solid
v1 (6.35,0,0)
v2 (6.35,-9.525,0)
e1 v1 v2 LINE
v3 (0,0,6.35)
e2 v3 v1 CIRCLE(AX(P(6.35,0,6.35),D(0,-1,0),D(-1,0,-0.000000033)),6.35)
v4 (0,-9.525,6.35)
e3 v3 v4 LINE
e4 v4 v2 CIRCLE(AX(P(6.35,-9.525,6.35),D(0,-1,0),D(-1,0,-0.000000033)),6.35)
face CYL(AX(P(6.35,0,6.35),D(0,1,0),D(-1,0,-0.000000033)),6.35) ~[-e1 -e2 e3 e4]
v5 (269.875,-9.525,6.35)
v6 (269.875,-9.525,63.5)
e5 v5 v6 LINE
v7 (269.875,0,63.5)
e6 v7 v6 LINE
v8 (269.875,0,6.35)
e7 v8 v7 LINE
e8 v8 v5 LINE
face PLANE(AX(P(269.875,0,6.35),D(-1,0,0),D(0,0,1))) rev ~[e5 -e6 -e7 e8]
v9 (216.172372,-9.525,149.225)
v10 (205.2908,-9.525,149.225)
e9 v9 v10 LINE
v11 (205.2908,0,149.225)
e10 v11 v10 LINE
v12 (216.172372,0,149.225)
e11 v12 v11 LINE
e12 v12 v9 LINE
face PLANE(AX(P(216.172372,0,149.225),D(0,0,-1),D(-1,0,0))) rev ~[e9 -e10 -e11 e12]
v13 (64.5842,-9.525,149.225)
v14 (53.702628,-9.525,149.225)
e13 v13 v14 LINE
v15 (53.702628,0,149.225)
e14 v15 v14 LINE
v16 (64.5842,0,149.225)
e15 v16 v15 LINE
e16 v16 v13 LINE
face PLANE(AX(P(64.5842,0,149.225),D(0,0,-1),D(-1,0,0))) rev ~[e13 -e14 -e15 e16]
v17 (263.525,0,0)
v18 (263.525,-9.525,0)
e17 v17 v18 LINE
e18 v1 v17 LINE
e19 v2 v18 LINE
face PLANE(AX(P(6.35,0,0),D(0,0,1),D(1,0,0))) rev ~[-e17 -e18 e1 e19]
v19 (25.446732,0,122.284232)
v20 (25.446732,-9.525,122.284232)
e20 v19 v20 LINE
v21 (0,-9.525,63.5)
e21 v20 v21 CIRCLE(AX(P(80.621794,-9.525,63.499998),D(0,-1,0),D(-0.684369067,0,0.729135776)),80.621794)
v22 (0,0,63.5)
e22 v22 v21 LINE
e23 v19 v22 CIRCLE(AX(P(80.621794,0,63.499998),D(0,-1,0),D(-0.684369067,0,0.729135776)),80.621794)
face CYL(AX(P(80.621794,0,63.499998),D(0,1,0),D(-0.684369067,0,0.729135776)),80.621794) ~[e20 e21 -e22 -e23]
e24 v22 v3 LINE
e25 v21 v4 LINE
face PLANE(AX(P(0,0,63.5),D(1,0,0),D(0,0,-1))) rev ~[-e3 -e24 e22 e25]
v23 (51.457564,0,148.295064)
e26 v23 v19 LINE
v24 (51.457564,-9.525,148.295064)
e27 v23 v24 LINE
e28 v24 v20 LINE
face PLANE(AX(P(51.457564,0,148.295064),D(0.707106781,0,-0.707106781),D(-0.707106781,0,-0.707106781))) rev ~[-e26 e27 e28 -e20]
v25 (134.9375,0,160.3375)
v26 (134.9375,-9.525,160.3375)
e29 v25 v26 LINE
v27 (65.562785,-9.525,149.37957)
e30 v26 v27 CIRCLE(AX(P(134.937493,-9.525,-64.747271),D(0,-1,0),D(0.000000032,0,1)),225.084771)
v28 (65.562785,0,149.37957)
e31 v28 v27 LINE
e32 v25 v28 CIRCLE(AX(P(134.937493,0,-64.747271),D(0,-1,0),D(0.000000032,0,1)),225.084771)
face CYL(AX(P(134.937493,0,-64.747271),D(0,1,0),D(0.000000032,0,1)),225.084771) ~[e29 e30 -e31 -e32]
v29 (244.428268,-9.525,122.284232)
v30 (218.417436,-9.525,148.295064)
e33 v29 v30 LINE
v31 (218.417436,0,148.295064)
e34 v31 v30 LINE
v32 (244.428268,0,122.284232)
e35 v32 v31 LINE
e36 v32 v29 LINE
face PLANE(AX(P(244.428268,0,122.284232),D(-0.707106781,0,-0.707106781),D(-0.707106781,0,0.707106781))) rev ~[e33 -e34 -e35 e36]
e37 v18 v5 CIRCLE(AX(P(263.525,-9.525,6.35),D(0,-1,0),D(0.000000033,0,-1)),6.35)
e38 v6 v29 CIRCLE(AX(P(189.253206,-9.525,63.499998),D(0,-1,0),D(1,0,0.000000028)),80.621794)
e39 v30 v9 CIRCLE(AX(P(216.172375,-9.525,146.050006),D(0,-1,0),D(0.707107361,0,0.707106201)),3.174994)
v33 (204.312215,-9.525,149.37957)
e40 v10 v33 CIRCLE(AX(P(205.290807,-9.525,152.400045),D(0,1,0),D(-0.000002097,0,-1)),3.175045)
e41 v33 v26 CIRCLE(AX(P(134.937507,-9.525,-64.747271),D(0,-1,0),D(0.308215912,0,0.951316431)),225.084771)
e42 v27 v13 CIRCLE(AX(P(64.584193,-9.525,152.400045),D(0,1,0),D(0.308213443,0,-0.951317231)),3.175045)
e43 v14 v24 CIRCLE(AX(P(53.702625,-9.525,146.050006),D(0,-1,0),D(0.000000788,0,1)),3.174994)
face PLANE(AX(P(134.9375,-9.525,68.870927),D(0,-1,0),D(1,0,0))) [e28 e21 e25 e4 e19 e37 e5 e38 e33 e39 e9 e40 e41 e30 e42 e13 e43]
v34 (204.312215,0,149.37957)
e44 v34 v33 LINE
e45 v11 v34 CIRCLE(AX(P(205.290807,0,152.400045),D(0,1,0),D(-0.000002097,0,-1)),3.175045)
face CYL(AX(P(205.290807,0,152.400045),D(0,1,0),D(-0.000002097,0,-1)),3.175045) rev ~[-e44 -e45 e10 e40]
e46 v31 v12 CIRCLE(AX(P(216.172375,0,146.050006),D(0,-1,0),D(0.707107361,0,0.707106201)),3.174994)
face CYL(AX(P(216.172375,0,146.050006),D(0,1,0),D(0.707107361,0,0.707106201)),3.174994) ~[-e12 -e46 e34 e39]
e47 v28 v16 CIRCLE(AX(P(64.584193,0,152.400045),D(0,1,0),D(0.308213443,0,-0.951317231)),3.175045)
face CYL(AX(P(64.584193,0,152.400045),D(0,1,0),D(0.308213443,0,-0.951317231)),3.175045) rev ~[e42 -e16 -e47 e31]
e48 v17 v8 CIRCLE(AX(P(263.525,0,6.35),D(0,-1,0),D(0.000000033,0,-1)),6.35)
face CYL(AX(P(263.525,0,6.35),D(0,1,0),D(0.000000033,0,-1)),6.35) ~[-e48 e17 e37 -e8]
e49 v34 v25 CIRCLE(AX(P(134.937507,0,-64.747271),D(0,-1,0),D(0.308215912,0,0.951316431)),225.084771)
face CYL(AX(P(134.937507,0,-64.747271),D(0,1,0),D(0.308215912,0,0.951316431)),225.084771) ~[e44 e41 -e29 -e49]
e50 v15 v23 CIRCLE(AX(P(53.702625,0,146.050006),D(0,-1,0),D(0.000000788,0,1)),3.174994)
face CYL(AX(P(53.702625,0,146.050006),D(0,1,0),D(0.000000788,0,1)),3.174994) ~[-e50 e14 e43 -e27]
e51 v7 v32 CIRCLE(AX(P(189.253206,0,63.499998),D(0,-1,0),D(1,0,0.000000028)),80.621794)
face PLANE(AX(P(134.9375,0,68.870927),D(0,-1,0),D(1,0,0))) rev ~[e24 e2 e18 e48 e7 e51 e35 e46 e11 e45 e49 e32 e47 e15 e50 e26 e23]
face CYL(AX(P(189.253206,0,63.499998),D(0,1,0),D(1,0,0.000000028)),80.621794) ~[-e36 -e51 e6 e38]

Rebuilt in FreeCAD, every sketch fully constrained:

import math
import FreeCAD as App
import Part
import Sketcher
Q = App.Units.Quantity

doc = App.newDocument("Part")
body = doc.addObject("PartDesign::Body", "Body")

sketch1 = doc.addObject("Sketcher::SketchObject", "Sketch")
body.addObject(sketch1)
sketch1.AttachmentSupport = (doc.XZ_Plane, [""])
sketch1.MapMode = "FlatFace"
sketch1.addGeometry([
    Part.ArcOfCircle(Part.Circle(App.Vector(6.35, 6.35, 0), App.Vector(0, 0, 1), 6.35), math.radians(-179.999998), math.radians(-90.000002)),
    Part.LineSegment(App.Vector(6.35, 0, 0), App.Vector(263.525, 0, 0)),
    Part.ArcOfCircle(Part.Circle(App.Vector(263.525, 6.35, 0), App.Vector(0, 0, 1), 6.35), math.radians(-89.999998), math.radians(-0.000002)),
    Part.LineSegment(App.Vector(269.875, 6.35, 0), App.Vector(269.875, 63.5, 0)),
    Part.ArcOfCircle(Part.Circle(App.Vector(189.253206, 63.499998, 0), App.Vector(0, 0, 1), 80.621794), math.radians(0.000002), math.radians(46.813992)),
    Part.LineSegment(App.Vector(244.428268, 122.284232, 0), App.Vector(218.417436, 148.295064, 0)),
    Part.ArcOfCircle(Part.Circle(App.Vector(216.172375, 146.050006, 0), App.Vector(0, 0, 1), 3.174994), math.radians(44.999953), math.radians(90.000045)),
    Part.LineSegment(App.Vector(216.172372, 149.225, 0), App.Vector(205.2908, 149.225, 0)),
    Part.ArcOfCircle(Part.Circle(App.Vector(205.290807, 152.400045, 0), App.Vector(0, 0, 1), 3.175045), math.radians(-107.951597), math.radians(-90.00012)),
    Part.ArcOfCircle(Part.Circle(App.Vector(134.937507, -64.747271, 0), App.Vector(0, 0, 1), 225.084771), math.radians(72.048254), math.radians(90.000002)),
    Part.ArcOfCircle(Part.Circle(App.Vector(134.937493, -64.747271, 0), App.Vector(0, 0, 1), 225.084771), math.radians(89.999998), math.radians(107.951746)),
    Part.ArcOfCircle(Part.Circle(App.Vector(64.584193, 152.400045, 0), App.Vector(0, 0, 1), 3.175045), math.radians(-89.99988), math.radians(-72.048403)),
    Part.LineSegment(App.Vector(64.5842, 149.225, 0), App.Vector(53.702628, 149.225, 0)),
    Part.ArcOfCircle(Part.Circle(App.Vector(53.702625, 146.050006, 0), App.Vector(0, 0, 1), 3.174994), math.radians(89.999955), math.radians(135.000047)),
    Part.LineSegment(App.Vector(51.457564, 148.295064, 0), App.Vector(25.446732, 122.284232, 0)),
    Part.ArcOfCircle(Part.Circle(App.Vector(80.621794, 63.499998, 0), App.Vector(0, 0, 1), 80.621794), math.radians(133.186008), math.radians(179.999998)),
    Part.LineSegment(App.Vector(0, 63.5, 0), App.Vector(0, 6.35, 0)),
], False)
sketch1.addConstraint([
    Sketcher.Constraint("Coincident", 0, 2, 1, 1),
    Sketcher.Constraint("Coincident", 1, 2, 2, 1),
    Sketcher.Constraint("Coincident", 2, 2, 3, 1),
    Sketcher.Constraint("Coincident", 3, 2, 4, 1),
    Sketcher.Constraint("Coincident", 4, 2, 5, 1),
    Sketcher.Constraint("Coincident", 5, 2, 6, 1),
    Sketcher.Constraint("Coincident", 6, 2, 7, 1),
    Sketcher.Constraint("Coincident", 7, 2, 8, 2),
    Sketcher.Constraint("Coincident", 8, 1, 9, 1),
    Sketcher.Constraint("Coincident", 9, 2, 10, 1),
    Sketcher.Constraint("Coincident", 10, 2, 11, 2),
    Sketcher.Constraint("Coincident", 11, 1, 12, 1),
    Sketcher.Constraint("Coincident", 12, 2, 13, 1),
    Sketcher.Constraint("Coincident", 13, 2, 14, 1),
    Sketcher.Constraint("Coincident", 14, 2, 15, 1),
    Sketcher.Constraint("Coincident", 15, 2, 16, 1),
    Sketcher.Constraint("Coincident", 16, 2, 0, 1),
    Sketcher.Constraint("Horizontal", 1),
    Sketcher.Constraint("Vertical", 3),
    Sketcher.Constraint("Horizontal", 7),
    Sketcher.Constraint("Horizontal", 12),
    Sketcher.Constraint("Vertical", 16),
    Sketcher.Constraint("PointOnObject", 0, 2, -1),
    Sketcher.Constraint("PointOnObject", 15, 2, -2),
    Sketcher.Constraint("Radius", 0, Q("0.25 in")),
    Sketcher.Constraint("Radius", 2, Q("0.25 in")),
    Sketcher.Constraint("DistanceY", 3, 1, 3, 2, Q("2.25 in")),
    Sketcher.Constraint("DistanceY", 16, 2, 16, 1, Q("2.25 in")),
    Sketcher.Constraint("DistanceY", -1, 1, 4, 3, Q("2.4999999 in")),
    Sketcher.Constraint("DistanceY", -1, 1, 15, 3, Q("2.4999999 in")),
    Sketcher.Constraint("DistanceY", -1, 1, 3, 2, Q("2.5 in")),
    Sketcher.Constraint("DistanceY", -1, 1, 15, 2, Q("2.5 in")),
    Sketcher.Constraint("DistanceX", 1, 1, 1, 2, Q("10.125 in")),
    Sketcher.Constraint("DistanceX", -1, 1, 0, 2, Q("0.25 in")),
    Sketcher.Constraint("DistanceX", 1, 2, 2, 2, Q("0.25 in")),
    Sketcher.Constraint("DistanceY", -1, 1, 6, 2, Q("5.875 in")),
    Sketcher.Constraint("DistanceX", -1, 1, 9, 2, Q("5.3125 in")),
    Sketcher.Constraint("DistanceY", -1, 1, 9, 2, Q("6.3125 in")),
    Sketcher.Constraint("DistanceY", -1, 1, 11, 1, Q("5.875 in")),
    Sketcher.Constraint("Radius", 9, 225.084771),
    Sketcher.Constraint("Radius", 10, 225.084771),
    Sketcher.Constraint("Radius", 4, 80.621794),
    Sketcher.Constraint("Radius", 6, 3.174994),
    Sketcher.Constraint("Radius", 8, 3.175045),
    Sketcher.Constraint("Radius", 11, 3.175045),
    Sketcher.Constraint("Radius", 13, 3.174994),
    Sketcher.Constraint("Radius", 15, 80.621794),
    Sketcher.Constraint("DistanceX", 12, 2, 12, 1, 10.881572),
    Sketcher.Constraint("DistanceX", -1, 1, 7, 2, 205.2908),
    Sketcher.Constraint("DistanceX", -1, 1, 11, 1, 64.5842),
    Sketcher.Constraint("DistanceX", 4, 3, 8, 3, 16.037601),
    Sketcher.Constraint("DistanceX", 11, 3, 15, 3, 16.037601),
    Sketcher.Constraint("Distance", 5, 36.784871),
    Sketcher.Constraint("Distance", 14, 36.784871),
    Sketcher.Constraint("DistanceX", 7, 2, 7, 1, 10.881572),
    Sketcher.Constraint("DistanceY", -1, 1, 4, 2, 122.284232),
    Sketcher.Constraint("DistanceY", -1, 1, 8, 1, 149.37957),
    Sketcher.Constraint("DistanceY", -1, 1, 10, 2, 149.37957),
    Sketcher.Constraint("DistanceX", 4, 3, 6, 3, 26.919168),
    Sketcher.Constraint("DistanceX", 13, 3, 8, 3, 151.588181),
    Sketcher.Constraint("DistanceX", 13, 2, 13, 3, 2.245061),
])
pad1 = doc.addObject("PartDesign::Pad", "Pad")
body.addObject(pad1)
pad1.Profile = sketch1
pad1.Length = Q("0.375 in")

doc.recompute()
